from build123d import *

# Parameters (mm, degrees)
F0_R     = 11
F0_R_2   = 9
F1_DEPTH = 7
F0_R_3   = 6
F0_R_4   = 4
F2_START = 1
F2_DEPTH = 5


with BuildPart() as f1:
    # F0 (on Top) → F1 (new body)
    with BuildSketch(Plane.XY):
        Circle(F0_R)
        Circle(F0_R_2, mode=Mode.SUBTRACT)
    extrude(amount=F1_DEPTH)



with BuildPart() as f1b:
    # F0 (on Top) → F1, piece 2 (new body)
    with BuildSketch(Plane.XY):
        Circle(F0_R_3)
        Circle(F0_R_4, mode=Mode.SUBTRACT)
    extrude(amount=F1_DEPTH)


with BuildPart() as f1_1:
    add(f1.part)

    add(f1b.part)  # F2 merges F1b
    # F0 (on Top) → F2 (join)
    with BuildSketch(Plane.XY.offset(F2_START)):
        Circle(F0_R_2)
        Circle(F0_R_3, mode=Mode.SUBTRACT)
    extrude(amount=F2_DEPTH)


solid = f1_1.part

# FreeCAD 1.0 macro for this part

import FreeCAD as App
import Part
import Sketcher
Q = App.Units.Quantity

doc = App.newDocument("Part")
body = doc.addObject("PartDesign::Body", "Body")

# Sketch on XY plane
sketch1 = body.newObject("Sketcher::SketchObject", "Sketch")
sketch1.AttachmentSupport = (doc.getObject("XY_Plane"), [""])
sketch1.MapMode = "FlatFace"
sketch1.addGeometry([
    Part.Circle(App.Vector(0, 0, 0), App.Vector(0, 0, 1), 11),
    Part.Circle(App.Vector(0, 0, 0), App.Vector(0, 0, 1), 9),
], False)
sketch1.addConstraint([
    Sketcher.Constraint("Coincident", 0, 3, -1, 1),
    Sketcher.Constraint("Coincident", 1, 3, -1, 1),
    Sketcher.Constraint("Diameter", 0, Q("22 mm")),
    Sketcher.Constraint("Diameter", 1, Q("18 mm")),
])
pad1 = body.newObject("PartDesign::Pad", "Pad")
pad1.Profile = sketch1
pad1.Length = 7
body2 = doc.addObject("PartDesign::Body", "Body001")

# Sketch on XY plane
sketch2 = body2.newObject("Sketcher::SketchObject", "Sketch001")
sketch2.AttachmentSupport = (doc.getObject("XY_Plane001"), [""])
sketch2.MapMode = "FlatFace"
sketch2.addGeometry([
    Part.Circle(App.Vector(0, 0, 0), App.Vector(0, 0, 1), 6),
    Part.Circle(App.Vector(0, 0, 0), App.Vector(0, 0, 1), 4),
], False)
sketch2.addConstraint([
    Sketcher.Constraint("Coincident", 0, 3, -1, 1),
    Sketcher.Constraint("Coincident", 1, 3, -1, 1),
    Sketcher.Constraint("Diameter", 0, Q("12 mm")),
    Sketcher.Constraint("Diameter", 1, Q("8 mm")),
])
pad2 = body2.newObject("PartDesign::Pad", "Pad001")
pad2.Profile = sketch2
pad2.Length = 7
body.AllowCompound = True
doc.recompute()

boolean = body.newObject("PartDesign::Boolean", "Boolean")
boolean.Type = "Fuse"
boolean.addObjects([body2])

# Sketch on XY plane
sketch3 = body.newObject("Sketcher::SketchObject", "Sketch002")
sketch3.AttachmentSupport = (doc.getObject("XY_Plane"), [""])
sketch3.MapMode = "FlatFace"
sketch3.AttachmentOffset = App.Placement(App.Vector(0, 0, 1), App.Rotation())
sketch3.addGeometry([
    Part.Circle(App.Vector(0, 0, 0), App.Vector(0, 0, 1), 9),
    Part.Circle(App.Vector(0, 0, 0), App.Vector(0, 0, 1), 6),
], False)
sketch3.addConstraint([
    Sketcher.Constraint("Coincident", 0, 3, -1, 1),
    Sketcher.Constraint("Coincident", 1, 3, -1, 1),
    Sketcher.Constraint("Diameter", 0, Q("18 mm")),
    Sketcher.Constraint("Diameter", 1, Q("12 mm")),
])
pad3 = body.newObject("PartDesign::Pad", "Pad002")
pad3.Profile = sketch3
pad3.Length = 5

doc.recompute()
